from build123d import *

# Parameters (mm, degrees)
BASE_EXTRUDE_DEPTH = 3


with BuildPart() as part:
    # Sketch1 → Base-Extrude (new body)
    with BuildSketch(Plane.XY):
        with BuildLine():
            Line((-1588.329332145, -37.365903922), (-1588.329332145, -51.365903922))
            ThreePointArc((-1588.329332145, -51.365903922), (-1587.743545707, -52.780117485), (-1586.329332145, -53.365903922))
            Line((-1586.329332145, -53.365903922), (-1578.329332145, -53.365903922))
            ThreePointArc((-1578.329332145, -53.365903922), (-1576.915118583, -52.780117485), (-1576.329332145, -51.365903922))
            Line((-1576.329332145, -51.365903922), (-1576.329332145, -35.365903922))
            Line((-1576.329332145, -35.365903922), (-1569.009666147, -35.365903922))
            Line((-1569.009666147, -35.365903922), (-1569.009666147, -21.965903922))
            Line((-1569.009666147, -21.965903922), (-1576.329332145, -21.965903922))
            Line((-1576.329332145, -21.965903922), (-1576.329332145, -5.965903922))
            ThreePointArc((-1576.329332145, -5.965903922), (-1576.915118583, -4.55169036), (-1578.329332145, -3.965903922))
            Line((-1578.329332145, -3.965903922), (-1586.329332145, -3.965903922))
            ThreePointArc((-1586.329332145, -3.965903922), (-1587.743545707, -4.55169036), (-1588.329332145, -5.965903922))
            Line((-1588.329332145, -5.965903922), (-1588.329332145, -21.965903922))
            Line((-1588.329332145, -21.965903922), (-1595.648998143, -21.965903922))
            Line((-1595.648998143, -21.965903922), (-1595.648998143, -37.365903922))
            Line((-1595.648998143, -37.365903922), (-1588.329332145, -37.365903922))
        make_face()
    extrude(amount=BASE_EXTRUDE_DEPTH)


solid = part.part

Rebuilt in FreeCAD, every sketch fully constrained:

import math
import FreeCAD as App
import Part
import Sketcher

doc = App.newDocument("Part")
params = doc.addObject("Spreadsheet::Sheet", "Params")
for row, (alias, value) in enumerate([
    ("sketch1_radius", "2 mm"),
    ("sketch1_width", "8 mm"),
    ("sketch1_height", "14 mm"),
    ("sketch1_height2", "16 mm"),
    ("sketch1_height3", "13.4 mm"),
    ("pad1_length", "3 mm"),
], start=1):
    params.set(f"A{row}", alias)
    params.set(f"B{row}", "=" + value)
    params.setAlias(f"B{row}", alias)

body = doc.addObject("PartDesign::Body", "Body")

# Sketch on XY plane
sketch1 = body.newObject("Sketcher::SketchObject", "Sketch")
sketch1.AttachmentSupport = (doc.getObject("XY_Plane"), [""])
sketch1.MapMode = "FlatFace"
sketch1.addGeometry(Part.LineSegment(App.Vector(-1588.3, -37.4, 0), App.Vector(-1588.3, -51.4, 0)), False)
sketch1.addGeometry(Part.ArcOfCircle(Part.Circle(App.Vector(-1586.3, -51.4, 0), App.Vector(0, 0, 1), 2), math.radians(180), math.radians(270)), False)
sketch1.addGeometry(Part.LineSegment(App.Vector(-1586.3, -53.4, 0), App.Vector(-1578.3, -53.4, 0)), False)
sketch1.addGeometry(Part.ArcOfCircle(Part.Circle(App.Vector(-1578.3, -51.4, 0), App.Vector(0, 0, 1), 2), math.radians(-90), math.radians(0)), False)
sketch1.addGeometry(Part.LineSegment(App.Vector(-1576.3, -51.4, 0), App.Vector(-1576.3, -35.4, 0)), False)
sketch1.addGeometry(Part.LineSegment(App.Vector(-1576.3, -35.4, 0), App.Vector(-1569, -35.4, 0)), False)
sketch1.addGeometry(Part.LineSegment(App.Vector(-1569, -35.4, 0), App.Vector(-1569, -22, 0)), False)
sketch1.addGeometry(Part.LineSegment(App.Vector(-1569, -22, 0), App.Vector(-1576.3, -22, 0)), False)
sketch1.addGeometry(Part.LineSegment(App.Vector(-1576.3, -22, 0), App.Vector(-1576.3, -6, 0)), False)
sketch1.addGeometry(Part.ArcOfCircle(Part.Circle(App.Vector(-1578.3, -6, 0), App.Vector(0, 0, 1), 2), math.radians(0), math.radians(90)), False)
sketch1.addGeometry(Part.LineSegment(App.Vector(-1578.3, -4, 0), App.Vector(-1586.3, -4, 0)), False)
sketch1.addGeometry(Part.ArcOfCircle(Part.Circle(App.Vector(-1586.3, -6, 0), App.Vector(0, 0, 1), 2), math.radians(90), math.radians(180)), False)
sketch1.addGeometry(Part.LineSegment(App.Vector(-1588.3, -6, 0), App.Vector(-1588.3, -22, 0)), False)
sketch1.addGeometry(Part.LineSegment(App.Vector(-1588.3, -22, 0), App.Vector(-1595.6, -22, 0)), False)
sketch1.addGeometry(Part.LineSegment(App.Vector(-1595.6, -22, 0), App.Vector(-1595.6, -37.4, 0)), False)
sketch1.addGeometry(Part.LineSegment(App.Vector(-1595.6, -37.4, 0), App.Vector(-1588.3, -37.4, 0)), False)
sketch1.addConstraint(Sketcher.Constraint("Tangent", 0, 2, 1, 1))
sketch1.addConstraint(Sketcher.Constraint("Tangent", 1, 2, 2, 1))
sketch1.addConstraint(Sketcher.Constraint("Tangent", 2, 2, 3, 1))
sketch1.addConstraint(Sketcher.Constraint("Tangent", 3, 2, 4, 1))
sketch1.addConstraint(Sketcher.Constraint("Coincident", 4, 2, 5, 1))
sketch1.addConstraint(Sketcher.Constraint("Coincident", 5, 2, 6, 1))
sketch1.addConstraint(Sketcher.Constraint("Coincident", 6, 2, 7, 1))
sketch1.addConstraint(Sketcher.Constraint("Coincident", 7, 2, 8, 1))
sketch1.addConstraint(Sketcher.Constraint("Tangent", 8, 2, 9, 1))
sketch1.addConstraint(Sketcher.Constraint("Tangent", 9, 2, 10, 1))
sketch1.addConstraint(Sketcher.Constraint("Tangent", 10, 2, 11, 1))
sketch1.addConstraint(Sketcher.Constraint("Tangent", 11, 2, 12, 1))
sketch1.addConstraint(Sketcher.Constraint("Coincident", 12, 2, 13, 1))
sketch1.addConstraint(Sketcher.Constraint("Coincident", 13, 2, 14, 1))
sketch1.addConstraint(Sketcher.Constraint("Coincident", 14, 2, 15, 1))
sketch1.addConstraint(Sketcher.Constraint("Coincident", 15, 2, 0, 1))
sketch1.addConstraint(Sketcher.Constraint("Vertical", 0))
sketch1.addConstraint(Sketcher.Constraint("Horizontal", 2))
sketch1.addConstraint(Sketcher.Constraint("Vertical", 4))
sketch1.addConstraint(Sketcher.Constraint("Horizontal", 5))
sketch1.addConstraint(Sketcher.Constraint("Vertical", 6))
sketch1.addConstraint(Sketcher.Constraint("Horizontal", 7))
sketch1.addConstraint(Sketcher.Constraint("Vertical", 8))
sketch1.addConstraint(Sketcher.Constraint("Horizontal", 10))
sketch1.addConstraint(Sketcher.Constraint("Vertical", 12))
sketch1.addConstraint(Sketcher.Constraint("Horizontal", 13))
sketch1.addConstraint(Sketcher.Constraint("Vertical", 14))
sketch1.addConstraint(Sketcher.Constraint("Horizontal", 15))
sketch1.addConstraint(Sketcher.Constraint("Equal", 1, 3))
sketch1.addConstraint(Sketcher.Constraint("Equal", 3, 9))
sketch1.addConstraint(Sketcher.Constraint("Equal", 9, 11))
sketch1.addConstraint(Sketcher.Constraint("Horizontal", 7, 2, 12, 2))
sketch1.addConstraint(Sketcher.Constraint("Vertical", 3, 3, 9, 3))
sketch1.addConstraint(Sketcher.Constraint("Vertical", 1, 3, 11, 3))
sketch1.addConstraint(Sketcher.Constraint("Equal", 7, 13))
sketch1.addConstraint(Sketcher.Constraint("Equal", 4, 8))
sketch1.addConstraint(Sketcher.Constraint("Radius", 1, 2.0))
sketch1.addConstraint(Sketcher.Constraint("DistanceX", 2, 1, 2, 2, 8.0))
sketch1.addConstraint(Sketcher.Constraint("DistanceY", 0, 2, 0, 1, 14.0))
sketch1.addConstraint(Sketcher.Constraint("DistanceY", 4, 1, 4, 2, 16.0))
sketch1.addConstraint(Sketcher.Constraint("DistanceY", 6, 1, 6, 2, 13.4))
sketch1.addConstraint(Sketcher.Constraint("DistanceX", 13, 2, -1, 1, 1595.648998))
sketch1.addConstraint(Sketcher.Constraint("DistanceX", 5, 1, 5, 2, 7.319666))
sketch1.addConstraint(Sketcher.Constraint("DistanceY", 1, 3, -1, 1, 51.365904))
sketch1.setExpression("Constraints[36]", "Params.sketch1_radius")
sketch1.setExpression("Constraints[37]", "Params.sketch1_width")
sketch1.setExpression("Constraints[38]", "Params.sketch1_height")
sketch1.setExpression("Constraints[39]", "Params.sketch1_height2")
sketch1.setExpression("Constraints[40]", "Params.sketch1_height3")
pad1 = body.newObject("PartDesign::Pad", "Pad")
pad1.Profile = sketch1
pad1.setExpression("Length", "Params.pad1_length")

doc.recompute()
